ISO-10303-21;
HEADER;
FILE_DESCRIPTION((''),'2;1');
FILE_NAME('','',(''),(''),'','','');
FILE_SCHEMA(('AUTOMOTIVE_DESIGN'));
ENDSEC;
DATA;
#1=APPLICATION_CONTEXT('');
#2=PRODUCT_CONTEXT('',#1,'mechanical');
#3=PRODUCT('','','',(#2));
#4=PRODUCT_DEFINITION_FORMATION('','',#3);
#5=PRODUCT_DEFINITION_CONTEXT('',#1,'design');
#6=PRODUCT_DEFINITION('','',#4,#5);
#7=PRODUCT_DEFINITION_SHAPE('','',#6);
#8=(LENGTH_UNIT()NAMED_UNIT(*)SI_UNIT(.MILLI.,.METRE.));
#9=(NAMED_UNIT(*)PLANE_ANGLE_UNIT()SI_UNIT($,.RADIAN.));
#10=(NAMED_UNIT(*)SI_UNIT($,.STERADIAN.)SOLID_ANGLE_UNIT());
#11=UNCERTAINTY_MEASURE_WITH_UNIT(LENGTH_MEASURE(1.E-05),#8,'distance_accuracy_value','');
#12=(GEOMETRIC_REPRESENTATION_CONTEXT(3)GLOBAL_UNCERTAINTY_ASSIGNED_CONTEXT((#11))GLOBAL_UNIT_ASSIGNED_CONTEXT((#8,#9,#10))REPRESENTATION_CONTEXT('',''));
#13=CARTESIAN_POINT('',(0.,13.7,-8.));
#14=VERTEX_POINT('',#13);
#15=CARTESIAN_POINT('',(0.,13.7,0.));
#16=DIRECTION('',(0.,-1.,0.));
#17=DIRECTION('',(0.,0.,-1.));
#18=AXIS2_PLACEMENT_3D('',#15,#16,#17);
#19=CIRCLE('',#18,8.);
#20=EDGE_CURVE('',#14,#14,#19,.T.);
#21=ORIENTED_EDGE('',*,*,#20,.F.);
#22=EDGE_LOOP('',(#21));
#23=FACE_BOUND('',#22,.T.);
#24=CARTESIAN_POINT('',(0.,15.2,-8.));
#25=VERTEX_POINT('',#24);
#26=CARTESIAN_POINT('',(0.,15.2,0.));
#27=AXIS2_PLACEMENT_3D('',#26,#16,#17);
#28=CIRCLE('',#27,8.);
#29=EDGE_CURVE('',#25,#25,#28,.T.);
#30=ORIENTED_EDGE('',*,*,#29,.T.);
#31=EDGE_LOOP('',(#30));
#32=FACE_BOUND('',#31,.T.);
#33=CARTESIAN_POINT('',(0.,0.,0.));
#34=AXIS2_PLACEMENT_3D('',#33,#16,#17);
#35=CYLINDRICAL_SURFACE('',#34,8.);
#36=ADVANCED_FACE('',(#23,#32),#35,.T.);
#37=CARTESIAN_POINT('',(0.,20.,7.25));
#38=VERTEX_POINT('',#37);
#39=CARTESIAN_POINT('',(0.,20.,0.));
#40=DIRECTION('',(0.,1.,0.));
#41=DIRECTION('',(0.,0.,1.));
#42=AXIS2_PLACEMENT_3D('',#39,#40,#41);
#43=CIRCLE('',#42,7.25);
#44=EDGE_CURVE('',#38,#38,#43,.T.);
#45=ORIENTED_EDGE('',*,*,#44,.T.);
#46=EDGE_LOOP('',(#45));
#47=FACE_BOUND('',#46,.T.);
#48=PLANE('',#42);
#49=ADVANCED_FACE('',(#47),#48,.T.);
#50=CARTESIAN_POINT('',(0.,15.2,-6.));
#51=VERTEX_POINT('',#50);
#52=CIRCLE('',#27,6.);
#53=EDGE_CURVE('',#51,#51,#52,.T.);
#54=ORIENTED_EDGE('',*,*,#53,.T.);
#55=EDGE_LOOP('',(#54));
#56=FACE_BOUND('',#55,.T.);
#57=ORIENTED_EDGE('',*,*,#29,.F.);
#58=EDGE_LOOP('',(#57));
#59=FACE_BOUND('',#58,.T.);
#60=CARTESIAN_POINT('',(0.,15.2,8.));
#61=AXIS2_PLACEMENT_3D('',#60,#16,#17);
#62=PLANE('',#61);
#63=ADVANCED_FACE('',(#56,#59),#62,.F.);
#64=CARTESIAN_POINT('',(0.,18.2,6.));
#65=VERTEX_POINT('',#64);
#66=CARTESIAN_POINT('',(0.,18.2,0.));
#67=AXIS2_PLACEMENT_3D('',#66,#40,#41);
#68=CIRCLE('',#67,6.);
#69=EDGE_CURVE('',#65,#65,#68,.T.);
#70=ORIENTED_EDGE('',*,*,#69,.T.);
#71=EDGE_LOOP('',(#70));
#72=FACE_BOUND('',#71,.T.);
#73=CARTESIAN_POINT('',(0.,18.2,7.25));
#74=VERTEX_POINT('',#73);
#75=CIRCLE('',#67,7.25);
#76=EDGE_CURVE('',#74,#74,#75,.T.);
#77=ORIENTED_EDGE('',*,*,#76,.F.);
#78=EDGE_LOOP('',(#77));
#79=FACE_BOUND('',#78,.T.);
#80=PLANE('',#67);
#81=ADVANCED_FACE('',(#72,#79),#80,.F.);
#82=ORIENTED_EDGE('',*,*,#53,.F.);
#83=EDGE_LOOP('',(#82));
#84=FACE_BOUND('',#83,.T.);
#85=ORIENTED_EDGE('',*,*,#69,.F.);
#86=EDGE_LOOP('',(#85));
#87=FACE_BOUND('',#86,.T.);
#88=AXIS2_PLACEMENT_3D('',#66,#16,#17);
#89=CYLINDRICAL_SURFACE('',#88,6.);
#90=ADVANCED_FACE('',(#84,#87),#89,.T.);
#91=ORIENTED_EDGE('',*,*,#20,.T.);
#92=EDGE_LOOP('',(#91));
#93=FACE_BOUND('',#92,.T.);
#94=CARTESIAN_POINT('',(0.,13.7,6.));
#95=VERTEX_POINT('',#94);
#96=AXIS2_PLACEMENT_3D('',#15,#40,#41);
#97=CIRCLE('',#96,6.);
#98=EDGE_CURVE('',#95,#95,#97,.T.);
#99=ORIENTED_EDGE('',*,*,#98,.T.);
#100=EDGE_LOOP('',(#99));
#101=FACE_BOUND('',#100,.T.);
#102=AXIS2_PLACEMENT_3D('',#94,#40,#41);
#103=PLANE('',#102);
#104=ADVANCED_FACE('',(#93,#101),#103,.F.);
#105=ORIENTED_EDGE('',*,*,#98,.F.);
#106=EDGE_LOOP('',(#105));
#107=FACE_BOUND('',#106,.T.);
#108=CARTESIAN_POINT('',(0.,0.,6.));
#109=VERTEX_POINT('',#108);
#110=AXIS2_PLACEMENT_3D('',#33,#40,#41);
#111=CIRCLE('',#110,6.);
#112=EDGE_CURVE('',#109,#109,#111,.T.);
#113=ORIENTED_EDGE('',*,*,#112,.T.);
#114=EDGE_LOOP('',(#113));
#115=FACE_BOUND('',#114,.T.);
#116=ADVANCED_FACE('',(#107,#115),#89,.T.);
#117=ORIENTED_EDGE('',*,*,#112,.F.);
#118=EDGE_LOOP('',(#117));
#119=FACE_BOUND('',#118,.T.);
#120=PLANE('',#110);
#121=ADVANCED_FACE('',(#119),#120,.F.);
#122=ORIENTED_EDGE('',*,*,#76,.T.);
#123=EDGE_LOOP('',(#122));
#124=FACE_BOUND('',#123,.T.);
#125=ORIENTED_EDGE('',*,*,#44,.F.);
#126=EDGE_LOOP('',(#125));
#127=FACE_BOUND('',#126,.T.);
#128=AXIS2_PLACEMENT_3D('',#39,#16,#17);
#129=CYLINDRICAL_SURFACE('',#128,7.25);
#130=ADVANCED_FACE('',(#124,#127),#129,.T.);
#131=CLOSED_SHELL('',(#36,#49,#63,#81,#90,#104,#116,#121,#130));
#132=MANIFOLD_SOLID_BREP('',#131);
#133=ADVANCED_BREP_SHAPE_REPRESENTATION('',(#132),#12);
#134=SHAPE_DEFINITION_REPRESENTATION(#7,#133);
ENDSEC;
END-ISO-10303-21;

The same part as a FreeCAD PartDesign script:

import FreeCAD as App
import Part
import Sketcher

V = App.Vector
Q = App.Units.Quantity

doc = App.newDocument("Part")
body = doc.addObject("PartDesign::Body", "Body")

# Sketch on XZ plane
sketch1 = doc.addObject("Sketcher::SketchObject", "Sketch")
body.addObject(sketch1)
sketch1.AttachmentSupport = (doc.XZ_Plane, [""])
sketch1.MapMode = "FlatFace"
sketch1.addGeometry(Part.Circle(V(0, 0, 0), V(0, 0, 1), 6), False)
sketch1.addConstraint(Sketcher.Constraint("Coincident", 0, 3, -1, 1))
sketch1.addConstraint(Sketcher.Constraint("Diameter", 0, Q("12 mm")))
pad1 = doc.addObject("PartDesign::Pad", "Pad")
body.addObject(pad1)
pad1.Profile = sketch1
pad1.Length = 18.2
pad1.Reversed = True

# Sketch on XZ plane
sketch2 = doc.addObject("Sketcher::SketchObject", "Sketch001")
body.addObject(sketch2)
sketch2.AttachmentSupport = (doc.XZ_Plane, [""])
sketch2.MapMode = "FlatFace"
sketch2.AttachmentOffset = App.Placement(V(0, 0, -18.2), App.Rotation())
sketch2.addGeometry(Part.Circle(V(0, 0, 0), V(0, 0, 1), 7.25), False)
sketch2.addConstraint(Sketcher.Constraint("Coincident", 0, 3, -1, 1))
sketch2.addConstraint(Sketcher.Constraint("Diameter", 0, Q("14.5 mm")))
pad2 = doc.addObject("PartDesign::Pad", "Pad001")
body.addObject(pad2)
pad2.Profile = sketch2
pad2.Length = 1.8
pad2.Reversed = True

# Sketch on YZ plane
sketch3 = doc.addObject("Sketcher::SketchObject", "Sketch002")
body.addObject(sketch3)
sketch3.AttachmentSupport = (doc.YZ_Plane, [""])
sketch3.MapMode = "FlatFace"
sketch3.addGeometry(Part.LineSegment(V(15.2, 8, 0), V(13.7, 8, 0)), False)
sketch3.addGeometry(Part.LineSegment(V(13.7, 8, 0), V(13.7, 6, 0)), False)
sketch3.addGeometry(Part.LineSegment(V(13.7, 6, 0), V(15.2, 6, 0)), False)
sketch3.addGeometry(Part.LineSegment(V(15.2, 6, 0), V(15.2, 8, 0)), False)
sketch3.addConstraint(Sketcher.Constraint("Coincident", 0, 2, 1, 1))
sketch3.addConstraint(Sketcher.Constraint("Coincident", 1, 2, 2, 1))
sketch3.addConstraint(Sketcher.Constraint("Coincident", 2, 2, 3, 1))
sketch3.addConstraint(Sketcher.Constraint("Coincident", 3, 2, 0, 1))
sketch3.addConstraint(Sketcher.Constraint("Horizontal", 0))
sketch3.addConstraint(Sketcher.Constraint("Vertical", 1))
sketch3.addConstraint(Sketcher.Constraint("Horizontal", 2))
sketch3.addConstraint(Sketcher.Constraint("Vertical", 3))
sketch3.addConstraint(Sketcher.Constraint("DistanceY", 1, 2, 1, 1, Q("2 mm")))
sketch3.addConstraint(Sketcher.Constraint("DistanceX", 0, 2, 0, 1, Q("1.5 mm")))
sketch3.addConstraint(Sketcher.Constraint("DistanceY", -1, 1, 0, 2, Q("8 mm")))
sketch3.addConstraint(Sketcher.Constraint("DistanceX", -1, 1, 0, 2, Q("13.7 mm")))
revolution = doc.addObject("PartDesign::Revolution", "Revolution")
body.addObject(revolution)
revolution.Profile = sketch3
revolution.ReferenceAxis = (sketch3, ["H_Axis"])
revolution.Angle = 360

doc.recompute()
